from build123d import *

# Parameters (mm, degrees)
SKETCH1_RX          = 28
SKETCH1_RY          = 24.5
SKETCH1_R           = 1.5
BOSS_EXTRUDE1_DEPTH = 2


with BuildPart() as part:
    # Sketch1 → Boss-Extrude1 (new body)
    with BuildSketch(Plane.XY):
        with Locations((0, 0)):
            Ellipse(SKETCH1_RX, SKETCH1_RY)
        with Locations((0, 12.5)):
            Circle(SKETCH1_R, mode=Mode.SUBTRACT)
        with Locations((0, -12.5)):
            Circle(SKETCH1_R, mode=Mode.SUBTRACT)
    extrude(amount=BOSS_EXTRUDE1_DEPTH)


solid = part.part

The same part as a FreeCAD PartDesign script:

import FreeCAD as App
import Part
import Sketcher
Q = App.Units.Quantity

doc = App.newDocument("Part")
params = doc.addObject("Spreadsheet::Sheet", "Params")
for row, (alias, value) in enumerate([
    ("sketch1_diameter", "3 mm"),
    ("pad1_length", "2 mm"),
], start=1):
    params.set(f"A{row}", alias)
    params.set(f"B{row}", "=" + value)
    params.setAlias(f"B{row}", alias)

body = doc.addObject("PartDesign::Body", "Body")

# Sketch on XY plane
sketch1 = body.newObject("Sketcher::SketchObject", "Sketch")
sketch1.AttachmentSupport = (doc.getObject("XY_Plane"), [""])
sketch1.MapMode = "FlatFace"
sketch1.addGeometry([
    Part.Ellipse(App.Vector(28, 0, 0), App.Vector(0, 24.5, 0), App.Vector(0, 0, 0)),
    Part.Circle(App.Vector(0, -12.5, 0), App.Vector(0, 0, 1), 1.5),
    Part.Circle(App.Vector(0, 12.5, 0), App.Vector(0, 0, 1), 1.5),
], False)
sketch1.addConstraint([
    Sketcher.Constraint("Block", 0),
    Sketcher.Constraint("Equal", 1, 2),
    Sketcher.Constraint("Symmetric", 1, 3, 2, 3, -1, 1),
    Sketcher.Constraint("PointOnObject", 1, 3, -2),
    Sketcher.Constraint("Diameter", 1, Q("3 mm")),
    Sketcher.Constraint("DistanceY", 1, 3, 2, 3, Q("25 mm")),
])
sketch1.setExpression("Constraints[4]", "Params.sketch1_diameter")
pad1 = body.newObject("PartDesign::Pad", "Pad")
pad1.Profile = sketch1
pad1.setExpression("Length", "Params.pad1_length")

doc.recompute()
